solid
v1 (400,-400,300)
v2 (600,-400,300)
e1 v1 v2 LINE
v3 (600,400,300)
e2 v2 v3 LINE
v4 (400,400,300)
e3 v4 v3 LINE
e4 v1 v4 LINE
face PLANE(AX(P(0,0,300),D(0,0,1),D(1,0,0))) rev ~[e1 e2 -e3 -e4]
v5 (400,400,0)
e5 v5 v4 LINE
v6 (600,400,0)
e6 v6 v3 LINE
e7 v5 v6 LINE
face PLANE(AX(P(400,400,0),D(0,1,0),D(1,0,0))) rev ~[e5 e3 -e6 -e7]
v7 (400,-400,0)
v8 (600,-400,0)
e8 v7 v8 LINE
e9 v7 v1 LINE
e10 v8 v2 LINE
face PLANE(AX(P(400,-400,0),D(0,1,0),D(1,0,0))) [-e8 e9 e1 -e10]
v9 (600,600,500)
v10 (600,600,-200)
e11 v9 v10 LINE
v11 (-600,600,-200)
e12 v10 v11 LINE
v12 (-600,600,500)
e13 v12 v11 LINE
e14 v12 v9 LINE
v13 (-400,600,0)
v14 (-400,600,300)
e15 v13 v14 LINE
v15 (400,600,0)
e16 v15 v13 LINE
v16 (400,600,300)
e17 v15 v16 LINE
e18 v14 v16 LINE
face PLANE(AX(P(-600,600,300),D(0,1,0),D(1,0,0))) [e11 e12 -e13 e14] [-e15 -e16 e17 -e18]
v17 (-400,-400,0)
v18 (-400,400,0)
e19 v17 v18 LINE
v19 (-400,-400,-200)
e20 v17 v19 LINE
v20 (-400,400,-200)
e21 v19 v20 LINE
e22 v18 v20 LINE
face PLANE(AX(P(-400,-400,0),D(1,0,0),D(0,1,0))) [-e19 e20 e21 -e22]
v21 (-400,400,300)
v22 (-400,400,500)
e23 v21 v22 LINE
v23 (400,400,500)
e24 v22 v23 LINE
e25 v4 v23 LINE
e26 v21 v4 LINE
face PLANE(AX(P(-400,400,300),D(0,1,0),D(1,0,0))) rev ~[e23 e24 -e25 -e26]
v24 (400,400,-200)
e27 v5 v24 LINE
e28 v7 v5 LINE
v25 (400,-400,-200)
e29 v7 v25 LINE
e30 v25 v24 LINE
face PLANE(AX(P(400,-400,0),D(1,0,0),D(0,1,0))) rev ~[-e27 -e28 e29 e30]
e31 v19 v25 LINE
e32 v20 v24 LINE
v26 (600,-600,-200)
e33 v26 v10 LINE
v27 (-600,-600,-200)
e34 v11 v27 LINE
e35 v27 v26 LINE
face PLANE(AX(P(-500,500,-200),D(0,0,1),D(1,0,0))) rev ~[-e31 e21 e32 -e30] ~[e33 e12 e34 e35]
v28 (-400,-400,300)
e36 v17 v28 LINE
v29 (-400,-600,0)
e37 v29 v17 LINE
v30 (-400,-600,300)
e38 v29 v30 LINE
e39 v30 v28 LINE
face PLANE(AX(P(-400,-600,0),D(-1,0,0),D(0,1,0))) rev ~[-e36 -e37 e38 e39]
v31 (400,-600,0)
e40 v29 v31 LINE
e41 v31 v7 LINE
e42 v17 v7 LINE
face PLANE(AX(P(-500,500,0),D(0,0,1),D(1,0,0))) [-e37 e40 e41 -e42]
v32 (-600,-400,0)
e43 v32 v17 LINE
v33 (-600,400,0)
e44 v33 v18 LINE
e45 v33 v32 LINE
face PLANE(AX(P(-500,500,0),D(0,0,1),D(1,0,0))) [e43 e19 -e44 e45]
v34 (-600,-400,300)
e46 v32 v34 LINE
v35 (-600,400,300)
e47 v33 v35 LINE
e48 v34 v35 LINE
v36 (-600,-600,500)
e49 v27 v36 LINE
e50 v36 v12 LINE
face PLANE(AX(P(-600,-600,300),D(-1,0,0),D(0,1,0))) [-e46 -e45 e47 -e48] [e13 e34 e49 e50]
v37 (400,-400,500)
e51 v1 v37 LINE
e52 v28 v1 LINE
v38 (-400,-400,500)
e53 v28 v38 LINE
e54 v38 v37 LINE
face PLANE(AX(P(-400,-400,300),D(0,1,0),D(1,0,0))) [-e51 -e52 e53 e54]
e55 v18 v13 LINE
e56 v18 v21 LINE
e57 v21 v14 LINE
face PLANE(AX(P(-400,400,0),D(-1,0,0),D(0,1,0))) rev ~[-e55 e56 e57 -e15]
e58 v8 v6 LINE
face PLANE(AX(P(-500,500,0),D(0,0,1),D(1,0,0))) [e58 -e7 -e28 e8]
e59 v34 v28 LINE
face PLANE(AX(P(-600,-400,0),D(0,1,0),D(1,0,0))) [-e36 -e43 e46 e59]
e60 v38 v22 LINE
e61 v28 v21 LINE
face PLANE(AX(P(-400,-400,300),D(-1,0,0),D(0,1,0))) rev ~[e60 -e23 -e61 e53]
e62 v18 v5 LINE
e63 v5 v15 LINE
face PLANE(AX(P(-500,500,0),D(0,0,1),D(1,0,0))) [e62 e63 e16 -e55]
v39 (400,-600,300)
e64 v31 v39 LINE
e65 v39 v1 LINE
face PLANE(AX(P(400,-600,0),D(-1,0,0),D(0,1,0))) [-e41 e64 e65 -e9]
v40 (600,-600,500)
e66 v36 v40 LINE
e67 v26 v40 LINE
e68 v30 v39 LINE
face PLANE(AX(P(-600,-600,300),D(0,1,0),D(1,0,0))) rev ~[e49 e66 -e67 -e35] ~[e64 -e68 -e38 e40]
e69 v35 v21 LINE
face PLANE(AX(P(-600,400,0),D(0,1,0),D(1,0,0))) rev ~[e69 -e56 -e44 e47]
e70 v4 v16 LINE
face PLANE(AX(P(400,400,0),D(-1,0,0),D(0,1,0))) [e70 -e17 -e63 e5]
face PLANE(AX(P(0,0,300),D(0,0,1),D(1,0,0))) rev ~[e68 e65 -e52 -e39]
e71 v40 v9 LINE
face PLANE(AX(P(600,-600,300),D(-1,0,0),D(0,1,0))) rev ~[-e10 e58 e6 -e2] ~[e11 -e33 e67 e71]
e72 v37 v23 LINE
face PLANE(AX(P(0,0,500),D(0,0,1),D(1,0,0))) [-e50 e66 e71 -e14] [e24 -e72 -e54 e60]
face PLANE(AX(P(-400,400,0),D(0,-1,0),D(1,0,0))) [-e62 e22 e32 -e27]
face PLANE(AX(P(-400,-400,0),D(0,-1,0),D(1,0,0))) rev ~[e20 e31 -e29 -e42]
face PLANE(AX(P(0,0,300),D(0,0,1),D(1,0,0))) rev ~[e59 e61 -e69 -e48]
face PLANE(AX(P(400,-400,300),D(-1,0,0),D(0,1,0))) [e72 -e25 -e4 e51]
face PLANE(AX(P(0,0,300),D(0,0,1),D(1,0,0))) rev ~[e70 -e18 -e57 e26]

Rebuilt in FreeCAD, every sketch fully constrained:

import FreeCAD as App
import Part
import Sketcher
from FreeCAD import Vector
Q = App.Units.Quantity

doc = App.newDocument("Part")
body = doc.addObject("PartDesign::Body", "Body")

# Sketch on XY plane
sketch1 = body.newObject("Sketcher::SketchObject", "Sketch")
sketch1.AttachmentSupport = (doc.getObject("XY_Plane"), [""])
sketch1.MapMode = "FlatFace"
sketch1.addGeometry([
    Part.LineSegment(Vector(-600, 600, 0), Vector(-600, -600, 0)),
    Part.LineSegment(Vector(-600, -600, 0), Vector(600, -600, 0)),
    Part.LineSegment(Vector(600, -600, 0), Vector(600, 600, 0)),
    Part.LineSegment(Vector(600, 600, 0), Vector(-600, 600, 0)),
], False)
sketch1.addConstraint([
    Sketcher.Constraint("Coincident", 0, 2, 1, 1),
    Sketcher.Constraint("Coincident", 1, 2, 2, 1),
    Sketcher.Constraint("Coincident", 2, 2, 3, 1),
    Sketcher.Constraint("Coincident", 3, 2, 0, 1),
    Sketcher.Constraint("Vertical", 0),
    Sketcher.Constraint("Horizontal", 1),
    Sketcher.Constraint("Vertical", 2),
    Sketcher.Constraint("Horizontal", 3),
    Sketcher.Constraint("Symmetric", 0, 2, 2, 2, -1, 1),
    Sketcher.Constraint("Equal", 3, 0),
    Sketcher.Constraint("DistanceX", 1, 1, 1, 2, Q("1200 mm")),
])
pad1 = body.newObject("PartDesign::Pad", "Pad")
pad1.Profile = sketch1
pad1.Length = 200
pad1.Reversed = True

# Sketch on XY plane
sketch2 = body.newObject("Sketcher::SketchObject", "Sketch001")
sketch2.AttachmentSupport = (doc.getObject("XY_Plane"), [""])
sketch2.MapMode = "FlatFace"
sketch2.addGeometry([
    Part.LineSegment(Vector(-600, -400, 0), Vector(-600, -600, 0)),  # 0
    Part.LineSegment(Vector(-600, -600, 0), Vector(-400, -600, 0)),  # 1
    Part.LineSegment(Vector(-400, -600, 0), Vector(-400, -400, 0)),  # 2
    Part.LineSegment(Vector(-400, -400, 0), Vector(-600, -400, 0)),  # 3
    Part.LineSegment(Vector(400, -400, 0), Vector(400, -600, 0)),  # 4
    Part.LineSegment(Vector(400, -600, 0), Vector(600, -600, 0)),  # 5
    Part.LineSegment(Vector(600, -600, 0), Vector(600, -400, 0)),  # 6
    Part.LineSegment(Vector(600, -400, 0), Vector(400, -400, 0)),  # 7
    Part.LineSegment(Vector(400, 600, 0), Vector(400, 400, 0)),  # 8
    Part.LineSegment(Vector(400, 400, 0), Vector(600, 400, 0)),  # 9
    Part.LineSegment(Vector(600, 400, 0), Vector(600, 600, 0)),  # 10
    Part.LineSegment(Vector(600, 600, 0), Vector(400, 600, 0)),  # 11
    Part.LineSegment(Vector(-600, 600, 0), Vector(-600, 400, 0)),  # 12
    Part.LineSegment(Vector(-600, 400, 0), Vector(-400, 400, 0)),  # 13
    Part.LineSegment(Vector(-400, 400, 0), Vector(-400, 600, 0)),  # 14
    Part.LineSegment(Vector(-400, 600, 0), Vector(-600, 600, 0)),  # 15
], False)
sketch2.addConstraint([
    Sketcher.Constraint("Coincident", 0, 2, 1, 1),
    Sketcher.Constraint("Coincident", 1, 2, 2, 1),
    Sketcher.Constraint("Coincident", 2, 2, 3, 1),
    Sketcher.Constraint("Coincident", 3, 2, 0, 1),
    Sketcher.Constraint("Coincident", 4, 2, 5, 1),
    Sketcher.Constraint("Coincident", 5, 2, 6, 1),
    Sketcher.Constraint("Coincident", 6, 2, 7, 1),
    Sketcher.Constraint("Coincident", 7, 2, 4, 1),
    Sketcher.Constraint("Coincident", 8, 2, 9, 1),
    Sketcher.Constraint("Coincident", 9, 2, 10, 1),
    Sketcher.Constraint("Coincident", 10, 2, 11, 1),
    Sketcher.Constraint("Coincident", 11, 2, 8, 1),
    Sketcher.Constraint("Coincident", 12, 2, 13, 1),
    Sketcher.Constraint("Coincident", 13, 2, 14, 1),
    Sketcher.Constraint("Coincident", 14, 2, 15, 1),
    Sketcher.Constraint("Coincident", 15, 2, 12, 1),
    Sketcher.Constraint("Vertical", 0),
    Sketcher.Constraint("Horizontal", 1),
    Sketcher.Constraint("Vertical", 2),
    Sketcher.Constraint("Horizontal", 3),
    Sketcher.Constraint("Vertical", 4),
    Sketcher.Constraint("Horizontal", 5),
    Sketcher.Constraint("Vertical", 6),
    Sketcher.Constraint("Horizontal", 7),
    Sketcher.Constraint("Vertical", 8),
    Sketcher.Constraint("Horizontal", 9),
    Sketcher.Constraint("Vertical", 10),
    Sketcher.Constraint("Horizontal", 11),
    Sketcher.Constraint("Vertical", 12),
    Sketcher.Constraint("Horizontal", 13),
    Sketcher.Constraint("Vertical", 14),
    Sketcher.Constraint("Horizontal", 15),
    Sketcher.Constraint("Symmetric", 2, 2, 8, 2, -1, 1),
    Sketcher.Constraint("Symmetric", 0, 2, 10, 2, -1, 1),
    Sketcher.Constraint("Symmetric", 6, 2, 12, 2, -1, 1),
    Sketcher.Constraint("Symmetric", 4, 2, 14, 2, -1, 1),
    Sketcher.Constraint("Symmetric", 1, 2, 4, 2, -2),
    Sketcher.Constraint("Symmetric", 3, 2, 6, 2, -2),
    Sketcher.Constraint("Equal", 15, 0),
    Sketcher.Constraint("DistanceX", 1, 1, 1, 2, Q("200 mm")),
    Sketcher.Constraint("DistanceX", 0, 2, -1, 1, Q("600 mm")),
    Sketcher.Constraint("DistanceY", 0, 2, -1, 1, Q("600 mm")),
])
pad2 = body.newObject("PartDesign::Pad", "Pad001")
pad2.Profile = sketch2
pad2.Length = 300

# Sketch on XY plane
sketch3 = body.newObject("Sketcher::SketchObject", "Sketch002")
sketch3.AttachmentSupport = (doc.getObject("XY_Plane"), [""])
sketch3.MapMode = "FlatFace"
sketch3.addGeometry([
    Part.LineSegment(Vector(-400, 400, 0), Vector(-400, -400, 0)),
    Part.LineSegment(Vector(-400, -400, 0), Vector(400, -400, 0)),
    Part.LineSegment(Vector(400, -400, 0), Vector(400, 400, 0)),
    Part.LineSegment(Vector(400, 400, 0), Vector(-400, 400, 0)),
], False)
sketch3.addConstraint([
    Sketcher.Constraint("Coincident", 0, 2, 1, 1),
    Sketcher.Constraint("Coincident", 1, 2, 2, 1),
    Sketcher.Constraint("Coincident", 2, 2, 3, 1),
    Sketcher.Constraint("Coincident", 3, 2, 0, 1),
    Sketcher.Constraint("Vertical", 0),
    Sketcher.Constraint("Horizontal", 1),
    Sketcher.Constraint("Vertical", 2),
    Sketcher.Constraint("Horizontal", 3),
    Sketcher.Constraint("Symmetric", 0, 2, 2, 2, -1, 1),
    Sketcher.Constraint("Equal", 3, 0),
    Sketcher.Constraint("DistanceX", 1, 1, 1, 2, Q("800 mm")),
])
pocket1 = body.newObject("PartDesign::Pocket", "Pocket")
pocket1.Profile = sketch3
pocket1.Type = "ThroughAll"

# Sketch on XY plane
sketch4 = body.newObject("Sketcher::SketchObject", "Sketch003")
sketch4.AttachmentSupport = (doc.getObject("XY_Plane"), [""])
sketch4.MapMode = "FlatFace"
sketch4.AttachmentOffset = App.Placement(Vector(0, 0, 300), App.Rotation())
sketch4.addGeometry([
    Part.LineSegment(Vector(-600, 600, 0), Vector(-600, -600, 0)),  # 0
    Part.LineSegment(Vector(-600, -600, 0), Vector(600, -600, 0)),  # 1
    Part.LineSegment(Vector(600, -600, 0), Vector(600, 600, 0)),  # 2
    Part.LineSegment(Vector(600, 600, 0), Vector(-600, 600, 0)),  # 3
    Part.LineSegment(Vector(400, -400, 0), Vector(-400, -400, 0)),  # 4
    Part.LineSegment(Vector(-400, -400, 0), Vector(-400, 400, 0)),  # 5
    Part.LineSegment(Vector(-400, 400, 0), Vector(400, 400, 0)),  # 6
    Part.LineSegment(Vector(400, 400, 0), Vector(400, -400, 0)),  # 7
], False)
sketch4.addConstraint([
    Sketcher.Constraint("Coincident", 0, 2, 1, 1),
    Sketcher.Constraint("Coincident", 1, 2, 2, 1),
    Sketcher.Constraint("Coincident", 2, 2, 3, 1),
    Sketcher.Constraint("Coincident", 3, 2, 0, 1),
    Sketcher.Constraint("Coincident", 4, 2, 5, 1),
    Sketcher.Constraint("Coincident", 5, 2, 6, 1),
    Sketcher.Constraint("Coincident", 6, 2, 7, 1),
    Sketcher.Constraint("Coincident", 7, 2, 4, 1),
    Sketcher.Constraint("Vertical", 0),
    Sketcher.Constraint("Horizontal", 1),
    Sketcher.Constraint("Vertical", 2),
    Sketcher.Constraint("Horizontal", 3),
    Sketcher.Constraint("Horizontal", 4),
    Sketcher.Constraint("Vertical", 5),
    Sketcher.Constraint("Horizontal", 6),
    Sketcher.Constraint("Vertical", 7),
    Sketcher.Constraint("Symmetric", 0, 2, 2, 2, -1, 1),
    Sketcher.Constraint("Symmetric", 4, 2, 6, 2, -1, 1),
    Sketcher.Constraint("Equal", 3, 0),
    Sketcher.Constraint("Equal", 6, 5),
    Sketcher.Constraint("DistanceX", 1, 1, 1, 2, Q("1200 mm")),
    Sketcher.Constraint("DistanceX", 4, 2, 4, 1, Q("800 mm")),
])
pad3 = body.newObject("PartDesign::Pad", "Pad002")
pad3.Profile = sketch4
pad3.Length = 200

doc.recompute()
